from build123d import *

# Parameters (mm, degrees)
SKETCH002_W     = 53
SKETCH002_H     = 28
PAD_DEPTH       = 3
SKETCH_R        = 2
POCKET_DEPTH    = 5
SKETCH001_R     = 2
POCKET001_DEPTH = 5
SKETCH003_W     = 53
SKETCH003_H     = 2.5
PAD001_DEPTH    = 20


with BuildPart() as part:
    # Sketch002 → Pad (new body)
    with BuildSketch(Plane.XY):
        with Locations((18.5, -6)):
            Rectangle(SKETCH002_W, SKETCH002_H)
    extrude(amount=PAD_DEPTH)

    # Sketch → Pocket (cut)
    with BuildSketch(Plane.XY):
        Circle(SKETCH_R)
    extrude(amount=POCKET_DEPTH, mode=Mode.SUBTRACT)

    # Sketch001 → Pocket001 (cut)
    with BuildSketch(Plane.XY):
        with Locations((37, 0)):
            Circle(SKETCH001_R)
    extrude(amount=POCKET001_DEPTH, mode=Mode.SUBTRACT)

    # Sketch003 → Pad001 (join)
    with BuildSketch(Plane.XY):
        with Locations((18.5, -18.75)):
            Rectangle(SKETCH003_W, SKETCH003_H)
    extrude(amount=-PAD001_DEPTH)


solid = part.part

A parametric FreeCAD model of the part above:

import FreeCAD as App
import Part
import Sketcher
Q = App.Units.Quantity

doc = App.newDocument("Part")
body = doc.addObject("PartDesign::Body", "Body")

# Sketch on XY plane
sketch1 = body.newObject("Sketcher::SketchObject", "Sketch")
sketch1.AttachmentSupport = (doc.getObject("XY_Plane"), [""])
sketch1.MapMode = "FlatFace"
sketch1.addGeometry([
    Part.LineSegment(App.Vector(-8, 8, 0), App.Vector(-8, -20, 0)),
    Part.LineSegment(App.Vector(-8, -20, 0), App.Vector(45, -20, 0)),
    Part.LineSegment(App.Vector(45, -20, 0), App.Vector(45, 8, 0)),
    Part.LineSegment(App.Vector(45, 8, 0), App.Vector(-8, 8, 0)),
], False)
sketch1.addConstraint([
    Sketcher.Constraint("Coincident", 0, 2, 1, 1),
    Sketcher.Constraint("Coincident", 1, 2, 2, 1),
    Sketcher.Constraint("Coincident", 2, 2, 3, 1),
    Sketcher.Constraint("Coincident", 3, 2, 0, 1),
    Sketcher.Constraint("Vertical", 0),
    Sketcher.Constraint("Horizontal", 1),
    Sketcher.Constraint("Vertical", 2),
    Sketcher.Constraint("Horizontal", 3),
    Sketcher.Constraint("DistanceX", 1, 1, 1, 2, Q("53 mm")),
    Sketcher.Constraint("DistanceY", 0, 2, 0, 1, Q("28 mm")),
    Sketcher.Constraint("DistanceX", 0, 2, -1, 1, Q("8 mm")),
    Sketcher.Constraint("DistanceY", 0, 2, -1, 1, Q("20 mm")),
])
pad1 = body.newObject("PartDesign::Pad", "Pad")
pad1.Profile = sketch1
pad1.Length = 3

# Sketch on XY plane
sketch2 = body.newObject("Sketcher::SketchObject", "Sketch001")
sketch2.AttachmentSupport = (doc.getObject("XY_Plane"), [""])
sketch2.MapMode = "FlatFace"
sketch2.addGeometry(Part.Circle(App.Vector(0, 0, 0), App.Vector(0, 0, 1), 2), False)
sketch2.addConstraint([
    Sketcher.Constraint("Coincident", 0, 3, -1, 1),
    Sketcher.Constraint("Diameter", 0, Q("4 mm")),
])
pocket1 = body.newObject("PartDesign::Pocket", "Pocket")
pocket1.Profile = sketch2
pocket1.Length = 5
pocket1.Reversed = True

# Sketch on XY plane
sketch3 = body.newObject("Sketcher::SketchObject", "Sketch002")
sketch3.AttachmentSupport = (doc.getObject("XY_Plane"), [""])
sketch3.MapMode = "FlatFace"
sketch3.addGeometry(Part.Circle(App.Vector(37, 0, 0), App.Vector(0, 0, 1), 2), False)
sketch3.addConstraint([
    Sketcher.Constraint("PointOnObject", 0, 3, -1),
    Sketcher.Constraint("Diameter", 0, Q("4 mm")),
    Sketcher.Constraint("DistanceX", -1, 1, 0, 3, Q("37 mm")),
])
pocket2 = body.newObject("PartDesign::Pocket", "Pocket001")
pocket2.Profile = sketch3
pocket2.Length = 5
pocket2.Reversed = True

# Sketch on XY plane
sketch4 = body.newObject("Sketcher::SketchObject", "Sketch003")
sketch4.AttachmentSupport = (doc.getObject("XY_Plane"), [""])
sketch4.MapMode = "FlatFace"
sketch4.addGeometry([
    Part.LineSegment(App.Vector(-8, -17.5, 0), App.Vector(-8, -20, 0)),
    Part.LineSegment(App.Vector(-8, -20, 0), App.Vector(45, -20, 0)),
    Part.LineSegment(App.Vector(45, -20, 0), App.Vector(45, -17.5, 0)),
    Part.LineSegment(App.Vector(45, -17.5, 0), App.Vector(-8, -17.5, 0)),
], False)
sketch4.addConstraint([
    Sketcher.Constraint("Coincident", 0, 2, 1, 1),
    Sketcher.Constraint("Coincident", 1, 2, 2, 1),
    Sketcher.Constraint("Coincident", 2, 2, 3, 1),
    Sketcher.Constraint("Coincident", 3, 2, 0, 1),
    Sketcher.Constraint("Vertical", 0),
    Sketcher.Constraint("Horizontal", 1),
    Sketcher.Constraint("Vertical", 2),
    Sketcher.Constraint("Horizontal", 3),
    Sketcher.Constraint("DistanceX", 1, 1, 1, 2, Q("53 mm")),
    Sketcher.Constraint("DistanceY", 0, 2, 0, 1, Q("2.5 mm")),
    Sketcher.Constraint("DistanceX", 0, 2, -1, 1, Q("8 mm")),
    Sketcher.Constraint("DistanceY", 0, 2, -1, 1, Q("20 mm")),
])
pad2 = body.newObject("PartDesign::Pad", "Pad001")
pad2.Profile = sketch4
pad2.Length = 20
pad2.Reversed = True

doc.recompute()
